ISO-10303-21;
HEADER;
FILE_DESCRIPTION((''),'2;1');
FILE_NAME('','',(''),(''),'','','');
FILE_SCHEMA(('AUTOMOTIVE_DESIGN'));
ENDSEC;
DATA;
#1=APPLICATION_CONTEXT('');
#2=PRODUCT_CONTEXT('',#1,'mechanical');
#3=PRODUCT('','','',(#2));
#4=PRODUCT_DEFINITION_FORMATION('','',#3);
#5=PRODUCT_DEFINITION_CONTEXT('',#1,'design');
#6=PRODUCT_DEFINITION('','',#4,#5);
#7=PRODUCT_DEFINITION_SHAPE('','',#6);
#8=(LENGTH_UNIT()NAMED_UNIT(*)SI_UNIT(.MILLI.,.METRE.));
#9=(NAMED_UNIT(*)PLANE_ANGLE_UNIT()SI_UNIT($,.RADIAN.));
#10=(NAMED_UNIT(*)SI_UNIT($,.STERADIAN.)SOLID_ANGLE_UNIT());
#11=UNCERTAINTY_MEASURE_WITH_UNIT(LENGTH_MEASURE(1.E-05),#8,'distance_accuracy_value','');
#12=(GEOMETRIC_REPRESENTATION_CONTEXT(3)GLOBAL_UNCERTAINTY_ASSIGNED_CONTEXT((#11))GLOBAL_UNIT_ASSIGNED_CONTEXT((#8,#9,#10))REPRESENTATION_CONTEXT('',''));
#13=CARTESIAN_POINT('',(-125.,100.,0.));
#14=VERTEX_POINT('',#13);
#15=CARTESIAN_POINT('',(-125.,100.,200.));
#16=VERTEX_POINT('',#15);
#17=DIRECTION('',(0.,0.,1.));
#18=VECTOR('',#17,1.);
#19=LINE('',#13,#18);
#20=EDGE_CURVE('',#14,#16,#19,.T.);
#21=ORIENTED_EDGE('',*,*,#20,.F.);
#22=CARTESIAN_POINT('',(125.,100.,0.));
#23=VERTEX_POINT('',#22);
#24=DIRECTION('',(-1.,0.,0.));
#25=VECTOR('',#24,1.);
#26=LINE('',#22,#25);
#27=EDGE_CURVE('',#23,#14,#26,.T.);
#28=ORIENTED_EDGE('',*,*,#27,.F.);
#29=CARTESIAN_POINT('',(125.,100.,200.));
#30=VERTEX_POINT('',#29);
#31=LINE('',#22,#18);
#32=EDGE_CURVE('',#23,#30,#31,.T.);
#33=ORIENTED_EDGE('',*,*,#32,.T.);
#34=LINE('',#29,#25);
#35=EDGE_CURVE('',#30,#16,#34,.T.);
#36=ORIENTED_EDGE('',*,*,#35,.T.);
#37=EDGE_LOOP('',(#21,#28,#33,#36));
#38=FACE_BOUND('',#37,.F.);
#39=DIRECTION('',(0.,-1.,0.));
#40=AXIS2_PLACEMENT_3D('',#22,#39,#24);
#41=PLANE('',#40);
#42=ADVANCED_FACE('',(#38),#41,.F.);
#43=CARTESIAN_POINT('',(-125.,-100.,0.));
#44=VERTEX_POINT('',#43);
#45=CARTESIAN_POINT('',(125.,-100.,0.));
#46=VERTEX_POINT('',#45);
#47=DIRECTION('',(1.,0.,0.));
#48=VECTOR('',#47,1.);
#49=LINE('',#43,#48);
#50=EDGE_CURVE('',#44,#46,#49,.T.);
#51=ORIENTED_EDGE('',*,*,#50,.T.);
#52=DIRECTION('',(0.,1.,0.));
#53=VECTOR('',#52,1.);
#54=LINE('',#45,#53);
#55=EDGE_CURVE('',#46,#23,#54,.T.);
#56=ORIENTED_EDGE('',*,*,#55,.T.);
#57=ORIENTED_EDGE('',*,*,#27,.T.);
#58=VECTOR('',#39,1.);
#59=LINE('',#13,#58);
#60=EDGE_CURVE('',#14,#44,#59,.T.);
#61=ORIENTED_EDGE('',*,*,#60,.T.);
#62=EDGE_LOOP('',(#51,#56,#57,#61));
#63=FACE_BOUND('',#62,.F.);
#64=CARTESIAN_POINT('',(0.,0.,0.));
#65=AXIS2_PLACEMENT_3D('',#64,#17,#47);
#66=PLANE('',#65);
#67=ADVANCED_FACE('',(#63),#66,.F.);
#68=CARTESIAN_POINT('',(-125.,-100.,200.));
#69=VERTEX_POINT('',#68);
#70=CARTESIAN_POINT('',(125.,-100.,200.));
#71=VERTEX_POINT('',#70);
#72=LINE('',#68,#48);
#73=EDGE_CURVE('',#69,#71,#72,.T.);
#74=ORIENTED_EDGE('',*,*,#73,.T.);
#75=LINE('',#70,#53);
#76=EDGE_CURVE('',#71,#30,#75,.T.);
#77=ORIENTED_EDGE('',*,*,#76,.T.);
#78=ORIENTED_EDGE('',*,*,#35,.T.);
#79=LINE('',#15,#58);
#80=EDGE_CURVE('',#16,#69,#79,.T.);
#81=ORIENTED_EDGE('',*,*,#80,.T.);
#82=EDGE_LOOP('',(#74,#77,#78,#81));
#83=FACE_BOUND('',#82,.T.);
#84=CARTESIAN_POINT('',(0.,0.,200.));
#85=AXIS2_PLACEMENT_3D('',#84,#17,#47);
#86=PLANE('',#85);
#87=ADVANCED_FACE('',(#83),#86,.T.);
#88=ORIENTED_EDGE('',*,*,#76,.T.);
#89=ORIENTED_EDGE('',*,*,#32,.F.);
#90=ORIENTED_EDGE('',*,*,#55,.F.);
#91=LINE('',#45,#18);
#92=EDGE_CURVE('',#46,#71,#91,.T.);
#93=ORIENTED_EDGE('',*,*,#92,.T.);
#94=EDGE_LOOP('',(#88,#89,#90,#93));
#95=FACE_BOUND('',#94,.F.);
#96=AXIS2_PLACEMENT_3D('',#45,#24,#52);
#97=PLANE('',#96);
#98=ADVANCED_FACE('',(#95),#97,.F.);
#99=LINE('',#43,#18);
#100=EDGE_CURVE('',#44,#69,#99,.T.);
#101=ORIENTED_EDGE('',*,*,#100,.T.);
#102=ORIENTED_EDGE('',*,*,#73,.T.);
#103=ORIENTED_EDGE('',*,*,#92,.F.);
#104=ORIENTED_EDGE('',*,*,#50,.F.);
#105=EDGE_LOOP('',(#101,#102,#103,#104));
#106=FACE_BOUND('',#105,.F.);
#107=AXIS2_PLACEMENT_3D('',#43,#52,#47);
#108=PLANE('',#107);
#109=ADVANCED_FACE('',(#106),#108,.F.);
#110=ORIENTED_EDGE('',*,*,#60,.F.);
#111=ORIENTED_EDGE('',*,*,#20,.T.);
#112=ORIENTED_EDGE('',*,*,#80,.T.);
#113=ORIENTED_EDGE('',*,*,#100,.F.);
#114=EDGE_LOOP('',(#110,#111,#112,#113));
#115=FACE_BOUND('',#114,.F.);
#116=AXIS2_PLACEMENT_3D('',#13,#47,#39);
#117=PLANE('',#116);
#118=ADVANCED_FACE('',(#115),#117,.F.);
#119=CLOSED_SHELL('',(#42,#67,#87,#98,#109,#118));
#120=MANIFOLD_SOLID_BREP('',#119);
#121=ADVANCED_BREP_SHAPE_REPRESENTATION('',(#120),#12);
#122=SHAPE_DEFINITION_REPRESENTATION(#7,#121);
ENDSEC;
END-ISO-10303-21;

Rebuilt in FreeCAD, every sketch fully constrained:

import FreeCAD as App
import Part
import Sketcher
from FreeCAD import Vector
Q = App.Units.Quantity


def add_polygon(sketch, points):
    """Adds a closed chain of lines whose ends are joined by coincident constraints."""
    first, n = sketch.GeometryCount, len(points)
    for a, b in zip(points, points[1:] + points[:1]):
        sketch.addGeometry(Part.LineSegment(App.Vector(*a, 0), App.Vector(*b, 0)), False)
    for i in range(n):
        sketch.addConstraint(Sketcher.Constraint("Coincident", first + i, 2, first + (i + 1) % n, 1))

doc = App.newDocument("Part")
body = doc.addObject("PartDesign::Body", "Body")

# Sketch on XY plane
sketch1 = body.newObject("Sketcher::SketchObject", "Sketch")
sketch1.AttachmentSupport = (doc.getObject("XY_Plane"), [""])
sketch1.MapMode = "FlatFace"
add_polygon(sketch1, [(-125, 100), (-125, -100), (125, -100), (125, 100)])  # lines 0-3
sketch1.addConstraint(Sketcher.Constraint("Vertical", 0))
sketch1.addConstraint(Sketcher.Constraint("Horizontal", 1))
sketch1.addConstraint(Sketcher.Constraint("Vertical", 2))
sketch1.addConstraint(Sketcher.Constraint("Horizontal", 3))
sketch1.addConstraint(Sketcher.Constraint("Symmetric", 0, 2, 2, 2, -1, 1))
sketch1.addConstraint(Sketcher.Constraint("DistanceX", 1, 1, 1, 2, Q("250 mm")))
sketch1.addConstraint(Sketcher.Constraint("DistanceY", 0, 2, 0, 1, Q("200 mm")))
pad1 = body.newObject("PartDesign::Pad", "Pad")
pad1.Profile = sketch1
pad1.Length = 200

doc.recompute()
